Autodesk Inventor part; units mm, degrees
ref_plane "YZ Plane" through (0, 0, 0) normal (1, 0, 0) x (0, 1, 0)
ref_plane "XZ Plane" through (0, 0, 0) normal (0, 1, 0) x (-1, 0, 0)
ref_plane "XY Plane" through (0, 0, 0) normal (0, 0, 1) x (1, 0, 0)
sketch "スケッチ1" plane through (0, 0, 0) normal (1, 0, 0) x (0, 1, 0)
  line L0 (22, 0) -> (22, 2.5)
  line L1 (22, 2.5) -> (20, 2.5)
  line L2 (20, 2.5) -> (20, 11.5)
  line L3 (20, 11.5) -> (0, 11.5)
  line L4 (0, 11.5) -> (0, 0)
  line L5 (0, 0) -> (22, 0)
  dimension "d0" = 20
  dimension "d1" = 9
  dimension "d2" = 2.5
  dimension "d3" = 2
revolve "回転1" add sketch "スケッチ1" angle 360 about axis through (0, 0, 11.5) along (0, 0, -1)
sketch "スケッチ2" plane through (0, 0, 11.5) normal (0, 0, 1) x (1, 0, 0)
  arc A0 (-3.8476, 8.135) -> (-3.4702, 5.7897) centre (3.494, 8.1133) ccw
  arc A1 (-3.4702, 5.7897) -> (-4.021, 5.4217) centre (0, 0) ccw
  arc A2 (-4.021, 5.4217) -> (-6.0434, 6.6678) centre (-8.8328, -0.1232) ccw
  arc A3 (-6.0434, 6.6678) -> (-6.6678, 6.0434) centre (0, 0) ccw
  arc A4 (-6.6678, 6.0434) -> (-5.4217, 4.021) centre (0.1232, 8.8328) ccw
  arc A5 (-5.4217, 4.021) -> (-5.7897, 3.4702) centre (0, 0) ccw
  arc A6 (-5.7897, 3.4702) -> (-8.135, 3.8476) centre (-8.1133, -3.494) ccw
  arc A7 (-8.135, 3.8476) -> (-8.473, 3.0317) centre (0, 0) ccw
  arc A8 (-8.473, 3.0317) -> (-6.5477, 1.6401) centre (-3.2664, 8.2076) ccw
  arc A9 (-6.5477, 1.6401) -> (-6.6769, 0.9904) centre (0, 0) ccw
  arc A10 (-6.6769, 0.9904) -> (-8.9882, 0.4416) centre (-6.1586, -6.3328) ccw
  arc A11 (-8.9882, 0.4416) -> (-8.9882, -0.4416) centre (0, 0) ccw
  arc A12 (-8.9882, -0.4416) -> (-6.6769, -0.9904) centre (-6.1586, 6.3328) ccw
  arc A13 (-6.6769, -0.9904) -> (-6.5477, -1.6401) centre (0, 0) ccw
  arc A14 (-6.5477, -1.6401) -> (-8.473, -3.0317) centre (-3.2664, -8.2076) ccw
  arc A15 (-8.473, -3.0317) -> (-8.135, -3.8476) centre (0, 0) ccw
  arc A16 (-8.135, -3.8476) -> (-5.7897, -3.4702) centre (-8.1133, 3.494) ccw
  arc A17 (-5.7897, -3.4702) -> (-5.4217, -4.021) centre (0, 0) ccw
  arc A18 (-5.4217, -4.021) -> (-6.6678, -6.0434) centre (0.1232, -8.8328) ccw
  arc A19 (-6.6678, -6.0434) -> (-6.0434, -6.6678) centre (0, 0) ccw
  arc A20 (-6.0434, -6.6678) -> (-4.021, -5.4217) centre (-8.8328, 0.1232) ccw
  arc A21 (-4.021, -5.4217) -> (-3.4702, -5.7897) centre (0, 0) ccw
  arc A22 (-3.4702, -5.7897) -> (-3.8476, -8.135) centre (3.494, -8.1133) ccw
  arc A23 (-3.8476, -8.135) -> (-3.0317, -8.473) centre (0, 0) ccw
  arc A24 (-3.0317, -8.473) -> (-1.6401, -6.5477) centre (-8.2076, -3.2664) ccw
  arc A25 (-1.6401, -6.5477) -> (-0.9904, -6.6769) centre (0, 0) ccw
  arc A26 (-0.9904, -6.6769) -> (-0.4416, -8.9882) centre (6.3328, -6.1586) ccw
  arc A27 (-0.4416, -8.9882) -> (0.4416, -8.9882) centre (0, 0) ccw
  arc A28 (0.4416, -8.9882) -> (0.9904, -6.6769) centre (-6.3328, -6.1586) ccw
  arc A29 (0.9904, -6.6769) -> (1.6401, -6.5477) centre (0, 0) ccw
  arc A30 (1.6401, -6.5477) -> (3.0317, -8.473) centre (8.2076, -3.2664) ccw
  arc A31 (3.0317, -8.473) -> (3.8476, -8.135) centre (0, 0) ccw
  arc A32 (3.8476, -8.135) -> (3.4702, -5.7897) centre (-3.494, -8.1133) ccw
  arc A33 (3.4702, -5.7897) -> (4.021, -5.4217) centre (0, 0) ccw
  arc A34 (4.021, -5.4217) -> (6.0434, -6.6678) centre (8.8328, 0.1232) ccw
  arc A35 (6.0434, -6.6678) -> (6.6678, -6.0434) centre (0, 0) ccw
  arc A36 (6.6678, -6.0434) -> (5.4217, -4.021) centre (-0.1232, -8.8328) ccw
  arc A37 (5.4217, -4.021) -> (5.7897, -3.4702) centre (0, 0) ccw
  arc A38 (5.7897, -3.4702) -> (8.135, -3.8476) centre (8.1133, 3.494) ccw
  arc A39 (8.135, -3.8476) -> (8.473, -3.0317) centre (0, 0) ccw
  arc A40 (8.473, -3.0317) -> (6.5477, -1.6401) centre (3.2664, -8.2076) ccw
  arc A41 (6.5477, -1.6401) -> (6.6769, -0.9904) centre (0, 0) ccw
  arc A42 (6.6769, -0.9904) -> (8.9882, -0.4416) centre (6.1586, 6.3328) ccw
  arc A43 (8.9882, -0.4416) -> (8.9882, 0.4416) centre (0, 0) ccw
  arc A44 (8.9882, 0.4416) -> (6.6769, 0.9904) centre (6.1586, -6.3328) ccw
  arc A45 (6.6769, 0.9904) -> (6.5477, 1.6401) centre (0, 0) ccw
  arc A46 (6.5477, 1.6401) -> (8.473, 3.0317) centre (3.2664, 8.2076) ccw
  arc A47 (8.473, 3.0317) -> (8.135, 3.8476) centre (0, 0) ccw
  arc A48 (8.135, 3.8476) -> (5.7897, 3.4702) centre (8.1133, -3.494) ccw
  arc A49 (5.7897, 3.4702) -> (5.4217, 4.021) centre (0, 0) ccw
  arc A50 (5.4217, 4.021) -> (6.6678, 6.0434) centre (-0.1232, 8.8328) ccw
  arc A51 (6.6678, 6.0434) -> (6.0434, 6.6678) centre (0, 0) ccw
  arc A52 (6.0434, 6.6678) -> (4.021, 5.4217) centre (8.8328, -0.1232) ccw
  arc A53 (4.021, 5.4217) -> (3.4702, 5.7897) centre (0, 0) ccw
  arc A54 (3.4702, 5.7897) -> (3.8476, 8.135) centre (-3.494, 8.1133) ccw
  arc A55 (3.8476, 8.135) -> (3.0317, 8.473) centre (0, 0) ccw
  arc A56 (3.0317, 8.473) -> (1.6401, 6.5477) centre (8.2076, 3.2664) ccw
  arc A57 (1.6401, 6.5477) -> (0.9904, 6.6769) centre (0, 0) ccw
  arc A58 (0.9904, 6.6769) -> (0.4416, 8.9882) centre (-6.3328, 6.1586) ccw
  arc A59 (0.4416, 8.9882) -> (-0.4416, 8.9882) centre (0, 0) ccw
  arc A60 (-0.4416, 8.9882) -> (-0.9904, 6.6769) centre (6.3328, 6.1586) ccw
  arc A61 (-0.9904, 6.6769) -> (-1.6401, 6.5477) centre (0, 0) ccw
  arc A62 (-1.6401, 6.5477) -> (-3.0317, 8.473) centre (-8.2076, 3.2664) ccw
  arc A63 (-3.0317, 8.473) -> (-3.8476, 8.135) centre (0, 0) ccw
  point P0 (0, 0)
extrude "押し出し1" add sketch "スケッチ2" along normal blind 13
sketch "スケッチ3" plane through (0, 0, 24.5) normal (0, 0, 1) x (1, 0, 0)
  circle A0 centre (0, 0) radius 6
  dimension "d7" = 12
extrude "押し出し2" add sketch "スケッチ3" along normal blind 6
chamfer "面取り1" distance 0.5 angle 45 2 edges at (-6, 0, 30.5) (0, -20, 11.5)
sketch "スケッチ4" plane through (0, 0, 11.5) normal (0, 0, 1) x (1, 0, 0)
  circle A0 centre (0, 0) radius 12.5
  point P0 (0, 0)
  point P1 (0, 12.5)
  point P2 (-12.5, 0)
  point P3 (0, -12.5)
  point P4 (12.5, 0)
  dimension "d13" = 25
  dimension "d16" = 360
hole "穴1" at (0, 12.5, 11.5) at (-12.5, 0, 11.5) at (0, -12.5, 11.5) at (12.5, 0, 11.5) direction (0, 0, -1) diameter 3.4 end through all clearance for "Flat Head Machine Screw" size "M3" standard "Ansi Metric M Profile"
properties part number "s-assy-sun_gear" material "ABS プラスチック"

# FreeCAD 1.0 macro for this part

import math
import FreeCAD as App
import Part
import Sketcher

V = App.Vector
Q = App.Units.Quantity


def edges_at(feature, points):
    """Names of the edges that pass closest to the given points."""
    edges = feature.Shape.Edges
    near = lambda p: min(range(len(edges)), key=lambda i: edges[i].distToShape(Part.Vertex(*p))[0])
    return sorted({f"Edge{near(p) + 1}" for p in points})


def add_polygon(sketch, points):
    """Adds a closed chain of lines whose ends are joined by coincident constraints."""
    first, n = sketch.GeometryCount, len(points)
    for a, b in zip(points, points[1:] + points[:1]):
        sketch.addGeometry(Part.LineSegment(App.Vector(*a, 0), App.Vector(*b, 0)), False)
    for i in range(n):
        sketch.addConstraint(Sketcher.Constraint("Coincident", first + i, 2, first + (i + 1) % n, 1))

doc = App.newDocument("Part")
body = doc.addObject("PartDesign::Body", "Body")

# Sketch on YZ plane
sketch1 = body.newObject("Sketcher::SketchObject", "Sketch")
sketch1.AttachmentSupport = (doc.getObject("YZ_Plane"), [""])
sketch1.MapMode = "FlatFace"
add_polygon(sketch1, [(0, 0), (22, 0), (22, 2.5), (20, 2.5), (20, 11.5), (0, 11.5)])  # lines 0-5
sketch1.addConstraint([
    Sketcher.Constraint("Horizontal", 0),
    Sketcher.Constraint("Vertical", 1),
    Sketcher.Constraint("Horizontal", 2),
    Sketcher.Constraint("Vertical", 3),
    Sketcher.Constraint("Horizontal", 4),
    Sketcher.Constraint("Vertical", 5),
    Sketcher.Constraint("Coincident", 5, 2, -1, 1),
    Sketcher.Constraint("DistanceX", 2, 2, 2, 1, Q("2 mm")),
    Sketcher.Constraint("DistanceX", 4, 2, 4, 1, Q("20 mm")),
    Sketcher.Constraint("DistanceY", 3, 1, 3, 2, Q("9 mm")),
    Sketcher.Constraint("DistanceY", 1, 1, 1, 2, Q("2.5 mm")),
])
revolution = body.newObject("PartDesign::Revolution", "Revolution")
revolution.Profile = sketch1
revolution.ReferenceAxis = (sketch1, ["V_Axis"])
revolution.Angle = 360

# Sketch on XY plane
sketch2 = body.newObject("Sketcher::SketchObject", "Sketch001")
sketch2.AttachmentSupport = (doc.getObject("XY_Plane"), [""])
sketch2.MapMode = "FlatFace"
sketch2.AttachmentOffset = App.Placement(V(0, 0, 11.5), App.Rotation())
sketch2.addGeometry([
    Part.ArcOfCircle(Part.Circle(V(-0.005662, 0.014678, 0), V(0, 0, 1), 8.983325), math.radians(109.68511), math.radians(115.320063)),  # 0
    Part.ArcOfCircle(Part.Circle(V(3.494, 8.1133, 0), V(0, 0, 1), 7.341632), math.radians(179.830648), math.radians(198.451237)),  # 1
    Part.ArcOfCircle(Part.Circle(V(0.005896, -0.009311, 0), V(0, 0, 1), 6.761049), math.radians(120.9397), math.radians(126.555583)),  # 2
    Part.ArcOfCircle(Part.Circle(V(-8.831416, -0.121315, 0), V(0, 0, 1), 7.339286), math.radians(49.047452), math.radians(67.674022)),  # 3
    Part.ArcOfCircle(Part.Circle(V(0, 0, 0), V(0, 0, 1), 8.999013), math.radians(132.187775), math.radians(137.812225)),  # 4
    Part.ArcOfCircle(Part.Circle(V(0.125285, 8.833862, 0), V(0, 0, 1), 7.343887), math.radians(-157.668135), math.radians(-139.053339)),  # 5
    Part.ArcOfCircle(Part.Circle(V(-0.008982, 0.006326, 0), V(0, 0, 1), 6.739075), math.radians(143.435254), math.radians(149.069463)),  # 6
    Part.ArcOfCircle(Part.Circle(V(-8.1133, -3.494, 0), V(0, 0, 1), 7.341607), math.radians(71.548763), math.radians(90.169352)),  # 7
    Part.ArcOfCircle(Part.Circle(V(0.014433, -0.006398, 0), V(0, 0, 1), 9.014796), math.radians(154.689781), math.radians(160.305046)),  # 8
    Part.ArcOfCircle(Part.Circle(V(-3.2664, 8.2076, 0), V(0, 0, 1), 7.341568), math.radians(-135.169417), math.radians(-116.547949)),  # 9
    Part.ArcOfCircle(Part.Circle(V(-0.012506, 0.002808, 0), V(0, 0, 1), 6.737172), math.radians(165.934936), math.radians(171.570725)),  # 10
    Part.ArcOfCircle(Part.Circle(V(-6.158114, -6.335976, 0), V(0, 0, 1), 7.344721), math.radians(94.050397), math.radians(112.663763)),  # 11
    Part.ArcOfCircle(Part.Circle(V(0, 0, 0), V(0, 0, 1), 8.999042), math.radians(177.187258), math.radians(182.812742)),  # 12
    Part.ArcOfCircle(Part.Circle(V(-6.159593, 6.329747, 0), V(0, 0, 1), 7.338403), math.radians(-112.671846), math.radians(-94.042313)),  # 13
    Part.ArcOfCircle(Part.Circle(V(0.012677, 0.0022, 0), V(0, 0, 1), 6.762817), math.radians(-171.560031), math.radians(-165.94563)),  # 14
    Part.ArcOfCircle(Part.Circle(V(-3.2664, -8.2076, 0), V(0, 0, 1), 7.341593), math.radians(116.547949), math.radians(135.169417)),  # 15
    Part.ArcOfCircle(Part.Circle(V(-0.014678, -0.005662, 0), V(0, 0, 1), 8.983325), math.radians(-160.31489), math.radians(-154.679937)),  # 16
    Part.ArcOfCircle(Part.Circle(V(-8.1133, 3.494, 0), V(0, 0, 1), 7.341632), math.radians(-90.169352), math.radians(-71.548763)),  # 17
    Part.ArcOfCircle(Part.Circle(V(0.009311, 0.005896, 0), V(0, 0, 1), 6.761049), math.radians(-149.0603), math.radians(-143.444417)),  # 18
    Part.ArcOfCircle(Part.Circle(V(0.121315, -8.831416, 0), V(0, 0, 1), 7.339286), math.radians(139.047452), math.radians(157.674022)),  # 19
    Part.ArcOfCircle(Part.Circle(V(0, 0, 0), V(0, 0, 1), 8.999013), math.radians(-137.812225), math.radians(-132.187775)),  # 20
    Part.ArcOfCircle(Part.Circle(V(-8.833862, 0.125285, 0), V(0, 0, 1), 7.343887), math.radians(-67.668135), math.radians(-49.053339)),  # 21
    Part.ArcOfCircle(Part.Circle(V(-0.006326, -0.008982, 0), V(0, 0, 1), 6.739075), math.radians(-126.564746), math.radians(-120.930537)),  # 22
    Part.ArcOfCircle(Part.Circle(V(3.494, -8.1133, 0), V(0, 0, 1), 7.341607), math.radians(161.548763), math.radians(180.169352)),  # 23
    Part.ArcOfCircle(Part.Circle(V(0.006398, 0.014433, 0), V(0, 0, 1), 9.014796), math.radians(-115.310219), math.radians(-109.694954)),  # 24
    Part.ArcOfCircle(Part.Circle(V(-8.2076, -3.2664, 0), V(0, 0, 1), 7.341568), math.radians(-45.169417), math.radians(-26.547949)),  # 25
    Part.ArcOfCircle(Part.Circle(V(-0.002808, -0.012506, 0), V(0, 0, 1), 6.737172), math.radians(-104.065064), math.radians(-98.429275)),  # 26
    Part.ArcOfCircle(Part.Circle(V(6.335976, -6.158114, 0), V(0, 0, 1), 7.344721), math.radians(-175.949603), math.radians(-157.336237)),  # 27
    Part.ArcOfCircle(Part.Circle(V(0, 0, 0), V(0, 0, 1), 8.999042), math.radians(-92.812742), math.radians(-87.187258)),  # 28
    Part.ArcOfCircle(Part.Circle(V(-6.329747, -6.159593, 0), V(0, 0, 1), 7.338403), math.radians(-22.671846), math.radians(-4.042313)),  # 29
    Part.ArcOfCircle(Part.Circle(V(-0.0022, 0.012677, 0), V(0, 0, 1), 6.762817), math.radians(-81.560031), math.radians(-75.94563)),  # 30
    Part.ArcOfCircle(Part.Circle(V(8.2076, -3.2664, 0), V(0, 0, 1), 7.341593), math.radians(-153.452051), math.radians(-134.830583)),  # 31
    Part.ArcOfCircle(Part.Circle(V(0.005662, -0.014678, 0), V(0, 0, 1), 8.983325), math.radians(-70.31489), math.radians(-64.679937)),  # 32
    Part.ArcOfCircle(Part.Circle(V(-3.494, -8.1133, 0), V(0, 0, 1), 7.341632), math.radians(-0.169352), math.radians(18.451237)),  # 33
    Part.ArcOfCircle(Part.Circle(V(-0.005896, 0.009311, 0), V(0, 0, 1), 6.761049), math.radians(-59.0603), math.radians(-53.444417)),  # 34
    Part.ArcOfCircle(Part.Circle(V(8.831416, 0.121315, 0), V(0, 0, 1), 7.339286), math.radians(-130.952548), math.radians(-112.325978)),  # 35
    Part.ArcOfCircle(Part.Circle(V(0, 0, 0), V(0, 0, 1), 8.999013), math.radians(-47.812225), math.radians(-42.187775)),  # 36
    Part.ArcOfCircle(Part.Circle(V(-0.125285, -8.833862, 0), V(0, 0, 1), 7.343887), math.radians(22.331865), math.radians(40.946661)),  # 37
    Part.ArcOfCircle(Part.Circle(V(0.008982, -0.006326, 0), V(0, 0, 1), 6.739075), math.radians(-36.564746), math.radians(-30.930537)),  # 38
    Part.ArcOfCircle(Part.Circle(V(8.1133, 3.494, 0), V(0, 0, 1), 7.341607), math.radians(-108.451237), math.radians(-89.830648)),  # 39
    Part.ArcOfCircle(Part.Circle(V(-0.014433, 0.006398, 0), V(0, 0, 1), 9.014796), math.radians(-25.310219), math.radians(-19.694954)),  # 40
    Part.ArcOfCircle(Part.Circle(V(3.2664, -8.2076, 0), V(0, 0, 1), 7.341568), math.radians(44.830583), math.radians(63.452051)),  # 41
    Part.ArcOfCircle(Part.Circle(V(0.012506, -0.002808, 0), V(0, 0, 1), 6.737172), math.radians(-14.065064), math.radians(-8.429275)),  # 42
    Part.ArcOfCircle(Part.Circle(V(6.158114, 6.335976, 0), V(0, 0, 1), 7.344721), math.radians(-85.949603), math.radians(-67.336237)),  # 43
    Part.ArcOfCircle(Part.Circle(V(0, 0, 0), V(0, 0, 1), 8.999042), math.radians(-2.812742), math.radians(2.812742)),  # 44
    Part.ArcOfCircle(Part.Circle(V(6.159593, -6.329747, 0), V(0, 0, 1), 7.338403), math.radians(67.328154), math.radians(85.957687)),  # 45
    Part.ArcOfCircle(Part.Circle(V(-0.012677, -0.0022, 0), V(0, 0, 1), 6.762817), math.radians(8.439969), math.radians(14.05437)),  # 46
    Part.ArcOfCircle(Part.Circle(V(3.2664, 8.2076, 0), V(0, 0, 1), 7.341593), math.radians(-63.452051), math.radians(-44.830583)),  # 47
    Part.ArcOfCircle(Part.Circle(V(0.014678, 0.005662, 0), V(0, 0, 1), 8.983325), math.radians(19.68511), math.radians(25.320063)),  # 48
    Part.ArcOfCircle(Part.Circle(V(8.1133, -3.494, 0), V(0, 0, 1), 7.341632), math.radians(89.830648), math.radians(108.451237)),  # 49
    Part.ArcOfCircle(Part.Circle(V(-0.009311, -0.005896, 0), V(0, 0, 1), 6.761049), math.radians(30.9397), math.radians(36.555583)),  # 50
    Part.ArcOfCircle(Part.Circle(V(-0.121315, 8.831416, 0), V(0, 0, 1), 7.339286), math.radians(-40.952548), math.radians(-22.325978)),  # 51
    Part.ArcOfCircle(Part.Circle(V(0, 0, 0), V(0, 0, 1), 8.999013), math.radians(42.187775), math.radians(47.812225)),  # 52
    Part.ArcOfCircle(Part.Circle(V(8.833862, -0.125285, 0), V(0, 0, 1), 7.343887), math.radians(112.331865), math.radians(130.946661)),  # 53
    Part.ArcOfCircle(Part.Circle(V(0.006326, 0.008982, 0), V(0, 0, 1), 6.739075), math.radians(53.435254), math.radians(59.069463)),  # 54
    Part.ArcOfCircle(Part.Circle(V(-3.494, 8.1133, 0), V(0, 0, 1), 7.341607), math.radians(-18.451237), math.radians(0.169352)),  # 55
    Part.ArcOfCircle(Part.Circle(V(-0.006398, -0.014433, 0), V(0, 0, 1), 9.014796), math.radians(64.689781), math.radians(70.305046)),  # 56
    Part.ArcOfCircle(Part.Circle(V(8.2076, 3.2664, 0), V(0, 0, 1), 7.341568), math.radians(134.830583), math.radians(153.452051)),  # 57
    Part.ArcOfCircle(Part.Circle(V(0.002808, 0.012506, 0), V(0, 0, 1), 6.737172), math.radians(75.934936), math.radians(81.570725)),  # 58
    Part.ArcOfCircle(Part.Circle(V(-6.335976, 6.158114, 0), V(0, 0, 1), 7.344721), math.radians(4.050397), math.radians(22.663763)),  # 59
    Part.ArcOfCircle(Part.Circle(V(0, 0, 0), V(0, 0, 1), 8.999042), math.radians(87.187258), math.radians(92.812742)),  # 60
    Part.ArcOfCircle(Part.Circle(V(6.329747, 6.159593, 0), V(0, 0, 1), 7.338403), math.radians(157.328154), math.radians(175.957687)),  # 61
    Part.ArcOfCircle(Part.Circle(V(0.0022, -0.012677, 0), V(0, 0, 1), 6.762817), math.radians(98.439969), math.radians(104.05437)),  # 62
    Part.ArcOfCircle(Part.Circle(V(-8.2076, 3.2664, 0), V(0, 0, 1), 7.341593), math.radians(26.547949), math.radians(45.169417)),  # 63
], False)
sketch2.addConstraint([
    Sketcher.Constraint("Coincident", 0, 2, 1, 1),
    Sketcher.Constraint("Coincident", 1, 2, 2, 1),
    Sketcher.Constraint("Coincident", 2, 2, 3, 1),
    Sketcher.Constraint("Coincident", 3, 2, 4, 1),
    Sketcher.Constraint("Coincident", 4, 2, 5, 1),
    Sketcher.Constraint("Coincident", 5, 2, 6, 1),
    Sketcher.Constraint("Coincident", 6, 2, 7, 1),
    Sketcher.Constraint("Coincident", 7, 2, 8, 1),
    Sketcher.Constraint("Coincident", 8, 2, 9, 1),
    Sketcher.Constraint("Coincident", 9, 2, 10, 1),
    Sketcher.Constraint("Coincident", 10, 2, 11, 1),
    Sketcher.Constraint("Coincident", 11, 2, 12, 1),
    Sketcher.Constraint("Coincident", 12, 2, 13, 1),
    Sketcher.Constraint("Coincident", 13, 2, 14, 1),
    Sketcher.Constraint("Coincident", 14, 2, 15, 1),
    Sketcher.Constraint("Coincident", 15, 2, 16, 1),
    Sketcher.Constraint("Coincident", 16, 2, 17, 1),
    Sketcher.Constraint("Coincident", 17, 2, 18, 1),
    Sketcher.Constraint("Coincident", 18, 2, 19, 1),
    Sketcher.Constraint("Coincident", 19, 2, 20, 1),
    Sketcher.Constraint("Coincident", 20, 2, 21, 1),
    Sketcher.Constraint("Coincident", 21, 2, 22, 1),
    Sketcher.Constraint("Coincident", 22, 2, 23, 1),
    Sketcher.Constraint("Coincident", 23, 2, 24, 1),
    Sketcher.Constraint("Coincident", 24, 2, 25, 1),
    Sketcher.Constraint("Coincident", 25, 2, 26, 1),
    Sketcher.Constraint("Coincident", 26, 2, 27, 1),
    Sketcher.Constraint("Coincident", 27, 2, 28, 1),
    Sketcher.Constraint("Coincident", 28, 2, 29, 1),
    Sketcher.Constraint("Coincident", 29, 2, 30, 1),
    Sketcher.Constraint("Coincident", 30, 2, 31, 1),
    Sketcher.Constraint("Coincident", 31, 2, 32, 1),
    Sketcher.Constraint("Coincident", 32, 2, 33, 1),
    Sketcher.Constraint("Coincident", 33, 2, 34, 1),
    Sketcher.Constraint("Coincident", 34, 2, 35, 1),
    Sketcher.Constraint("Coincident", 35, 2, 36, 1),
    Sketcher.Constraint("Coincident", 36, 2, 37, 1),
    Sketcher.Constraint("Coincident", 37, 2, 38, 1),
    Sketcher.Constraint("Coincident", 38, 2, 39, 1),
    Sketcher.Constraint("Coincident", 39, 2, 40, 1),
    Sketcher.Constraint("Coincident", 40, 2, 41, 1),
    Sketcher.Constraint("Coincident", 41, 2, 42, 1),
    Sketcher.Constraint("Coincident", 42, 2, 43, 1),
    Sketcher.Constraint("Coincident", 43, 2, 44, 1),
    Sketcher.Constraint("Coincident", 44, 2, 45, 1),
    Sketcher.Constraint("Coincident", 45, 2, 46, 1),
    Sketcher.Constraint("Coincident", 46, 2, 47, 1),
    Sketcher.Constraint("Coincident", 47, 2, 48, 1),
    Sketcher.Constraint("Coincident", 48, 2, 49, 1),
    Sketcher.Constraint("Coincident", 49, 2, 50, 1),
    Sketcher.Constraint("Coincident", 50, 2, 51, 1),
    Sketcher.Constraint("Coincident", 51, 2, 52, 1),
    Sketcher.Constraint("Coincident", 52, 2, 53, 1),
    Sketcher.Constraint("Coincident", 53, 2, 54, 1),
    Sketcher.Constraint("Coincident", 54, 2, 55, 1),
    Sketcher.Constraint("Coincident", 55, 2, 56, 1),
    Sketcher.Constraint("Coincident", 56, 2, 57, 1),
    Sketcher.Constraint("Coincident", 57, 2, 58, 1),
    Sketcher.Constraint("Coincident", 58, 2, 59, 1),
    Sketcher.Constraint("Coincident", 59, 2, 60, 1),
    Sketcher.Constraint("Coincident", 60, 2, 61, 1),
    Sketcher.Constraint("Coincident", 61, 2, 62, 1),
    Sketcher.Constraint("Coincident", 62, 2, 63, 1),
    Sketcher.Constraint("Coincident", 63, 2, 0, 1),
    Sketcher.Constraint("Coincident", 4, 3, -1, 1),
    Sketcher.Constraint("Coincident", 12, 3, -1, 1),
    Sketcher.Constraint("Coincident", 20, 3, -1, 1),
    Sketcher.Constraint("Coincident", 28, 3, -1, 1),
    Sketcher.Constraint("Coincident", 36, 3, -1, 1),
    Sketcher.Constraint("Coincident", 44, 3, -1, 1),
    Sketcher.Constraint("Coincident", 52, 3, -1, 1),
    Sketcher.Constraint("Coincident", 60, 3, -1, 1),
    Sketcher.Constraint("Equal", 1, 7),
    Sketcher.Constraint("Equal", 7, 9),
    Sketcher.Constraint("Equal", 4, 12),
    Sketcher.Constraint("Equal", 9, 15),
    Sketcher.Constraint("Equal", 0, 16),
    Sketcher.Constraint("Equal", 15, 17),
    Sketcher.Constraint("Equal", 2, 18),
    Sketcher.Constraint("Equal", 3, 19),
    Sketcher.Constraint("Equal", 12, 20),
    Sketcher.Constraint("Equal", 5, 21),
    Sketcher.Constraint("Equal", 6, 22),
    Sketcher.Constraint("Equal", 17, 23),
    Sketcher.Constraint("Equal", 8, 24),
    Sketcher.Constraint("Equal", 23, 25),
    Sketcher.Constraint("Equal", 10, 26),
    Sketcher.Constraint("Equal", 11, 27),
    Sketcher.Constraint("Equal", 20, 28),
    Sketcher.Constraint("Equal", 13, 29),
    Sketcher.Constraint("Equal", 14, 30),
    Sketcher.Constraint("Equal", 25, 31),
    Sketcher.Constraint("Equal", 16, 32),
    Sketcher.Constraint("Equal", 31, 33),
    Sketcher.Constraint("Equal", 18, 34),
    Sketcher.Constraint("Equal", 19, 35),
    Sketcher.Constraint("Equal", 28, 36),
    Sketcher.Constraint("Equal", 21, 37),
    Sketcher.Constraint("Equal", 22, 38),
    Sketcher.Constraint("Equal", 33, 39),
    Sketcher.Constraint("Equal", 24, 40),
    Sketcher.Constraint("Equal", 39, 41),
    Sketcher.Constraint("Equal", 26, 42),
    Sketcher.Constraint("Equal", 27, 43),
    Sketcher.Constraint("Equal", 36, 44),
    Sketcher.Constraint("Equal", 29, 45),
    Sketcher.Constraint("Equal", 30, 46),
    Sketcher.Constraint("Equal", 41, 47),
    Sketcher.Constraint("Equal", 32, 48),
    Sketcher.Constraint("Equal", 47, 49),
    Sketcher.Constraint("Equal", 34, 50),
    Sketcher.Constraint("Equal", 35, 51),
    Sketcher.Constraint("Equal", 44, 52),
    Sketcher.Constraint("Equal", 37, 53),
    Sketcher.Constraint("Equal", 38, 54),
    Sketcher.Constraint("Equal", 49, 55),
    Sketcher.Constraint("Equal", 40, 56),
    Sketcher.Constraint("Equal", 55, 57),
    Sketcher.Constraint("Equal", 42, 58),
    Sketcher.Constraint("Equal", 43, 59),
    Sketcher.Constraint("Equal", 52, 60),
    Sketcher.Constraint("Equal", 45, 61),
    Sketcher.Constraint("Equal", 46, 62),
    Sketcher.Constraint("Equal", 57, 63),
    Sketcher.Constraint("Symmetric", 0, 3, 32, 3, -1, 1),
    Sketcher.Constraint("Symmetric", 1, 3, 33, 3, -1, 1),
    Sketcher.Constraint("Symmetric", 2, 3, 34, 3, -1, 1),
    Sketcher.Constraint("Symmetric", 3, 3, 35, 3, -1, 1),
    Sketcher.Constraint("Symmetric", 5, 3, 37, 3, -1, 1),
    Sketcher.Constraint("Symmetric", 6, 3, 38, 3, -1, 1),
    Sketcher.Constraint("Symmetric", 7, 3, 39, 3, -1, 1),
    Sketcher.Constraint("Symmetric", 8, 3, 40, 3, -1, 1),
    Sketcher.Constraint("Symmetric", 9, 3, 41, 3, -1, 1),
    Sketcher.Constraint("Symmetric", 10, 3, 42, 3, -1, 1),
    Sketcher.Constraint("Symmetric", 11, 3, 43, 3, -1, 1),
    Sketcher.Constraint("Symmetric", 13, 3, 45, 3, -1, 1),
    Sketcher.Constraint("Symmetric", 14, 3, 46, 3, -1, 1),
    Sketcher.Constraint("Symmetric", 15, 3, 47, 3, -1, 1),
    Sketcher.Constraint("Symmetric", 16, 3, 48, 3, -1, 1),
    Sketcher.Constraint("Symmetric", 17, 3, 49, 3, -1, 1),
    Sketcher.Constraint("Symmetric", 18, 3, 50, 3, -1, 1),
    Sketcher.Constraint("Symmetric", 19, 3, 51, 3, -1, 1),
    Sketcher.Constraint("Symmetric", 21, 3, 53, 3, -1, 1),
    Sketcher.Constraint("Symmetric", 22, 3, 54, 3, -1, 1),
    Sketcher.Constraint("Symmetric", 23, 3, 55, 3, -1, 1),
    Sketcher.Constraint("Symmetric", 24, 3, 56, 3, -1, 1),
    Sketcher.Constraint("Symmetric", 25, 3, 57, 3, -1, 1),
    Sketcher.Constraint("Symmetric", 26, 3, 58, 3, -1, 1),
    Sketcher.Constraint("Symmetric", 27, 3, 59, 3, -1, 1),
    Sketcher.Constraint("Symmetric", 29, 3, 61, 3, -1, 1),
    Sketcher.Constraint("Symmetric", 30, 3, 62, 3, -1, 1),
    Sketcher.Constraint("Symmetric", 31, 3, 63, 3, -1, 1),
    Sketcher.Constraint("Symmetric", 25, 3, 31, 3, -2),
    Sketcher.Constraint("Symmetric", 23, 3, 33, 3, -2),
    Sketcher.Constraint("Symmetric", 17, 3, 39, 3, -2),
    Sketcher.Constraint("Symmetric", 15, 3, 41, 3, -2),
    Sketcher.Constraint("Symmetric", 26, 2, 29, 2, -2),
    Sketcher.Constraint("Symmetric", 21, 2, 34, 2, -2),
    Sketcher.Constraint("Symmetric", 18, 2, 37, 2, -2),
    Sketcher.Constraint("Symmetric", 13, 2, 42, 2, -2),
    Sketcher.Constraint("Horizontal", 8, 3, 38, 3),
    Sketcher.Constraint("Horizontal", 30, 3, 58, 3),
    Sketcher.Constraint("Horizontal", 27, 2, 28, 2),
    Sketcher.Constraint("Horizontal", 25, 2, 30, 2),
    Sketcher.Constraint("Horizontal", 24, 2, 31, 2),
    Sketcher.Constraint("Horizontal", 23, 2, 32, 2),
    Sketcher.Constraint("Horizontal", 22, 2, 33, 2),
    Sketcher.Constraint("Horizontal", 20, 2, 35, 2),
    Sketcher.Constraint("Horizontal", 19, 2, 36, 2),
    Sketcher.Constraint("Horizontal", 17, 2, 38, 2),
    Sketcher.Constraint("Horizontal", 15, 2, 40, 2),
    Sketcher.Constraint("Horizontal", 14, 2, 41, 2),
    Sketcher.Constraint("Horizontal", 12, 2, 43, 2),
    Sketcher.Constraint("Vertical", 14, 3, 42, 3),
    Sketcher.Constraint("Vertical", 24, 3, 54, 3),
    Sketcher.Constraint("Vertical", 7, 2, 16, 2),
    Sketcher.Constraint("Radius", 2, Q("6.761 mm")),
    Sketcher.Constraint("Radius", 4, Q("8.999 mm")),
    Sketcher.Constraint("Radius", 5, Q("7.344 mm")),
    Sketcher.Constraint("Radius", 6, Q("6.739 mm")),
    Sketcher.Constraint("Radius", 0, Q("8.9833 mm")),
    Sketcher.Constraint("Radius", 1, Q("7.3416 mm")),
    Sketcher.Constraint("Radius", 3, Q("7.3393 mm")),
    Sketcher.Constraint("Radius", 8, Q("9.0148 mm")),
    Sketcher.Constraint("Radius", 10, Q("6.7372 mm")),
    Sketcher.Constraint("Radius", 11, Q("7.3447 mm")),
    Sketcher.Constraint("Radius", 13, Q("7.3384 mm")),
    Sketcher.Constraint("Radius", 14, Q("6.7628 mm")),
    Sketcher.Constraint("DistanceY", 14, 2, -1, 1, Q("1.64 mm")),
    Sketcher.Constraint("DistanceX", -1, 1, 30, 2, Q("1.64 mm")),
    Sketcher.Constraint("DistanceX", -1, 1, 1, 3, Q("3.494 mm")),
    Sketcher.Constraint("DistanceX", -1, 1, 2, 3, Q("0.006 mm")),
    Sketcher.Constraint("DistanceX", 6, 3, -1, 1, Q("0.009 mm")),
    Sketcher.Constraint("DistanceY", 7, 3, -1, 1, Q("3.494 mm")),
    Sketcher.Constraint("DistanceX", 11, 3, -1, 1, Q("6.158 mm")),
    Sketcher.Constraint("DistanceY", 11, 3, -1, 1, Q("6.336 mm")),
    Sketcher.Constraint("DistanceY", -1, 1, 18, 3, Q("0.006 mm")),
    Sketcher.Constraint("DistanceY", 22, 3, -1, 1, Q("0.009 mm")),
    Sketcher.Constraint("DistanceX", -1, 1, 27, 3, Q("6.336 mm")),
    Sketcher.Constraint("DistanceY", 27, 3, -1, 1, Q("6.158 mm")),
    Sketcher.Constraint("DistanceY", -1, 1, 0, 2, Q("8.135 mm")),
    Sketcher.Constraint("DistanceX", 2, 2, -1, 1, Q("4.021 mm")),
    Sketcher.Constraint("DistanceY", -1, 1, 5, 2, Q("4.021 mm")),
    Sketcher.Constraint("DistanceX", 7, 2, -1, 1, Q("8.135 mm")),
    Sketcher.Constraint("DistanceX", 8, 2, -1, 1, Q("8.473 mm")),
    Sketcher.Constraint("DistanceX", 10, 2, -1, 1, Q("6.677 mm")),
    Sketcher.Constraint("DistanceY", 24, 2, -1, 1, Q("8.473 mm")),
    Sketcher.Constraint("DistanceY", 26, 2, -1, 1, Q("6.677 mm")),
    Sketcher.Constraint("DistanceY", -1, 1, 1, 3, Q("8.1133 mm")),
    Sketcher.Constraint("DistanceX", 3, 3, -1, 1, Q("8.8314 mm")),
    Sketcher.Constraint("DistanceX", -1, 1, 5, 3, Q("0.1253 mm")),
    Sketcher.Constraint("DistanceX", 7, 3, -1, 1, Q("8.1133 mm")),
])
pad1 = body.newObject("PartDesign::Pad", "Pad")
pad1.Profile = sketch2
pad1.Length = 13

# Sketch on XY plane
sketch3 = body.newObject("Sketcher::SketchObject", "Sketch002")
sketch3.AttachmentSupport = (doc.getObject("XY_Plane"), [""])
sketch3.MapMode = "FlatFace"
sketch3.AttachmentOffset = App.Placement(V(0, 0, 24.5), App.Rotation())
sketch3.addGeometry(Part.Circle(V(0, 0, 0), V(0, 0, 1), 6), False)
sketch3.addConstraint([
    Sketcher.Constraint("Coincident", 0, 3, -1, 1),
    Sketcher.Constraint("Diameter", 0, Q("12 mm")),
])
pad2 = body.newObject("PartDesign::Pad", "Pad001")
pad2.Profile = sketch3
pad2.Length = 6
doc.recompute()

chamfer = body.newObject("PartDesign::Chamfer", "Chamfer")
chamfer.Base = (pad2, edges_at(pad2, [(-6, 0, 30.5), (0, -20, 11.5)]))
chamfer.Size = 0.5

# Sketch on XY plane
sketch4 = body.newObject("Sketcher::SketchObject", "Sketch003")
sketch4.AttachmentSupport = (doc.getObject("XY_Plane"), [""])
sketch4.MapMode = "FlatFace"
sketch4.AttachmentOffset = App.Placement(V(0, 0, 11.5), App.Rotation())
sketch4.addGeometry([
    Part.Circle(V(0, 12.5, 0), V(0, 0, 1), 1.7),
    Part.Circle(V(-12.5, 0, 0), V(0, 0, 1), 1.7),
    Part.Circle(V(0, -12.5, 0), V(0, 0, 1), 1.7),
    Part.Circle(V(12.5, 0, 0), V(0, 0, 1), 1.7),
], False)
sketch4.addConstraint([
    Sketcher.Constraint("Equal", 0, 1),
    Sketcher.Constraint("Equal", 1, 2),
    Sketcher.Constraint("Equal", 2, 3),
    Sketcher.Constraint("Symmetric", 0, 3, 2, 3, -1, 1),
    Sketcher.Constraint("Symmetric", 1, 3, 3, 3, -1, 1),
    Sketcher.Constraint("PointOnObject", 0, 3, -2),
    Sketcher.Constraint("PointOnObject", 1, 3, -1),
    Sketcher.Constraint("Diameter", 0, Q("3.4 mm")),
    Sketcher.Constraint("DistanceY", 2, 3, 0, 3, Q("25 mm")),
    Sketcher.Constraint("DistanceX", 1, 3, 3, 3, Q("25 mm")),
])
doc.recompute()
hole = body.newObject("PartDesign::Hole", "Hole")
hole.Profile = sketch4
hole.ThreadType = "None"
hole.Diameter = 3.4
hole.DepthType = "ThroughAll"

doc.recompute()
